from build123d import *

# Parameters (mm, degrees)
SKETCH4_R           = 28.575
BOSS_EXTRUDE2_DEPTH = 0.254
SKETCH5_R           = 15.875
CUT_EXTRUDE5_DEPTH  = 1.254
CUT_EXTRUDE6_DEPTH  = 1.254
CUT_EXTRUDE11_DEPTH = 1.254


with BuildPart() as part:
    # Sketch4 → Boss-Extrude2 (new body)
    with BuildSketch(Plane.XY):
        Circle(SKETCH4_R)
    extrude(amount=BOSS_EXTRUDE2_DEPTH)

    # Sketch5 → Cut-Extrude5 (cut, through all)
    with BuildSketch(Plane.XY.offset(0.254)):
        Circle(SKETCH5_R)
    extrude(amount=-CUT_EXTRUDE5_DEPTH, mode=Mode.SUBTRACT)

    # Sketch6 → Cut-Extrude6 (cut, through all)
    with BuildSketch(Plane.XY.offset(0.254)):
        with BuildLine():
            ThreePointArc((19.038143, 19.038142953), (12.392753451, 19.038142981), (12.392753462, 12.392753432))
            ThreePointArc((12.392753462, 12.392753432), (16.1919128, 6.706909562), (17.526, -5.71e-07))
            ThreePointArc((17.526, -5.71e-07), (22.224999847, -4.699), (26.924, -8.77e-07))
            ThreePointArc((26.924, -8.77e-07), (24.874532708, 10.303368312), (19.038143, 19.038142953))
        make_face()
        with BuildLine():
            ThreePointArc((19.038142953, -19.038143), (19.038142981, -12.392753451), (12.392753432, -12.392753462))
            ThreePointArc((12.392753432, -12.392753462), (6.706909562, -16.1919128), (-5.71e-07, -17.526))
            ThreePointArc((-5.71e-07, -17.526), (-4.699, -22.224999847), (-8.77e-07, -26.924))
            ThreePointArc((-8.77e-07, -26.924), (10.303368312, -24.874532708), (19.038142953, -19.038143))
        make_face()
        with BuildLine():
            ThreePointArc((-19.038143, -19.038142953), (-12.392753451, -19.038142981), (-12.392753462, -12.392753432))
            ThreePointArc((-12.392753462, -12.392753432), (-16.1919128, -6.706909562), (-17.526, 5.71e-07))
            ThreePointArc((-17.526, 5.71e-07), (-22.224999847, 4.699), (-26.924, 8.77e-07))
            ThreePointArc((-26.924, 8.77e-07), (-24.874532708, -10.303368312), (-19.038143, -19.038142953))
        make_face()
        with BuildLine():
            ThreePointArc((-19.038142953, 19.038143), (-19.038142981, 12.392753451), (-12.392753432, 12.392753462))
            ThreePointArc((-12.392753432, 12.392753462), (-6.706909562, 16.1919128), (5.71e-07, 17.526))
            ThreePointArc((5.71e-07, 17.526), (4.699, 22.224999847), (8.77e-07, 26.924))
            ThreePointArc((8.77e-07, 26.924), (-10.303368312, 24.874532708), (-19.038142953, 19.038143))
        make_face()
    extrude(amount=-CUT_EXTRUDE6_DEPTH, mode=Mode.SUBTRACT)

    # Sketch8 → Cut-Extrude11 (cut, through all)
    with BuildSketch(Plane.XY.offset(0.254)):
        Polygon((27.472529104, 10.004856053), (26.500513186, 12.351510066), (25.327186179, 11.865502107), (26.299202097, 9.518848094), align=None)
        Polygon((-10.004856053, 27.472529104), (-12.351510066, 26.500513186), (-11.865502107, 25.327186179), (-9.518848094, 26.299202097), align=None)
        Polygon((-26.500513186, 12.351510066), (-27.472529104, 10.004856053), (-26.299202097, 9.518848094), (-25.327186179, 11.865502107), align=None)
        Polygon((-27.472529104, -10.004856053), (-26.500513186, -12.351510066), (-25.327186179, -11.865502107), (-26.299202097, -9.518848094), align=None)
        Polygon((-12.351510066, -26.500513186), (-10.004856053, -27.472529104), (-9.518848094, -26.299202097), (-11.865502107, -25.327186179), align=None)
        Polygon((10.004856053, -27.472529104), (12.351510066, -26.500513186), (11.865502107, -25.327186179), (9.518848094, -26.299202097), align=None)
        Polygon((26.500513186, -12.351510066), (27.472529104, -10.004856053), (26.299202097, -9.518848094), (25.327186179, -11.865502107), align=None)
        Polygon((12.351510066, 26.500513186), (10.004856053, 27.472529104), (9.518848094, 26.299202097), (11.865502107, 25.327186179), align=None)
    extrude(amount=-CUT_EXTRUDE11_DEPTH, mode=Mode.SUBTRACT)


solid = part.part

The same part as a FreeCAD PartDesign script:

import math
import FreeCAD as App
import Part
import Sketcher

V = App.Vector
Q = App.Units.Quantity

doc = App.newDocument("Part")
body = doc.addObject("PartDesign::Body", "Body")

sketch1 = doc.addObject("Sketcher::SketchObject", "Sketch")
body.addObject(sketch1)
sketch1.AttachmentSupport = (doc.XY_Plane, [""])
sketch1.MapMode = "FlatFace"
sketch1.addGeometry(Part.Circle(V(0, 0, 0), V(0, 0, 1), 29), False)
sketch1.addConstraint(Sketcher.Constraint("Coincident", 0, 3, -1, 1))
sketch1.addConstraint(Sketcher.Constraint("Diameter", 0, Q("2.25 in")))
pad1 = doc.addObject("PartDesign::Pad", "Pad")
body.addObject(pad1)
pad1.Profile = sketch1
pad1.Length = Q("0.01 in")

sketch2 = doc.addObject("Sketcher::SketchObject", "Sketch001")
body.addObject(sketch2)
sketch2.AttachmentSupport = (doc.XY_Plane, [""])
sketch2.MapMode = "FlatFace"
sketch2.AttachmentOffset = App.Placement(V(0, 0, 0.01 * 25.4), App.Rotation())
sketch2.addGeometry(Part.Circle(V(0, 0, 0), V(0, 0, 1), 16), False)
sketch2.addConstraint(Sketcher.Constraint("Coincident", 0, 3, -1, 1))
sketch2.addConstraint(Sketcher.Constraint("Diameter", 0, Q("1.25 in")))
pocket1 = doc.addObject("PartDesign::Pocket", "Pocket")
body.addObject(pocket1)
pocket1.Profile = sketch2
pocket1.Type = "ThroughAll"

sketch3 = doc.addObject("Sketcher::SketchObject", "Sketch002")
body.addObject(sketch3)
sketch3.AttachmentSupport = (doc.XY_Plane, [""])
sketch3.MapMode = "FlatFace"
sketch3.AttachmentOffset = App.Placement(V(0, 0, 0.01 * 25.4), App.Rotation())
sketch3.addGeometry(Part.ArcOfCircle(Part.Circle(V(15.7, 15.7, 0), V(0, 0, 1), 4.7), math.radians(45), math.radians(225)), False)
sketch3.addGeometry(Part.ArcOfCircle(Part.Circle(V(0, 0, 0), V(0, 0, 1), 17.5), math.radians(0), math.radians(45)), False)
sketch3.addGeometry(Part.ArcOfCircle(Part.Circle(V(22.2, 0, 0), V(0, 0, 1), 4.7), math.radians(-180), math.radians(0)), False)
sketch3.addGeometry(Part.ArcOfCircle(Part.Circle(V(0, 0, 0), V(0, 0, 1), 26.9), math.radians(0), math.radians(45)), False)
sketch3.addGeometry(Part.ArcOfCircle(Part.Circle(V(15.7, -15.7, 0), V(0, 0, 1), 4.7), math.radians(-45), math.radians(135)), False)
sketch3.addGeometry(Part.ArcOfCircle(Part.Circle(V(0, 0, 0), V(0, 0, 1), 17.5), math.radians(-90), math.radians(-45)), False)
sketch3.addGeometry(Part.ArcOfCircle(Part.Circle(V(0, -22.2, 0), V(0, 0, 1), 4.7), math.radians(90), math.radians(270)), False)
sketch3.addGeometry(Part.ArcOfCircle(Part.Circle(V(0, 0, 0), V(0, 0, 1), 26.9), math.radians(-90), math.radians(-45)), False)
sketch3.addGeometry(Part.ArcOfCircle(Part.Circle(V(-15.7, -15.7, 0), V(0, 0, 1), 4.7), math.radians(-135), math.radians(45)), False)
sketch3.addGeometry(Part.ArcOfCircle(Part.Circle(V(0, 0, 0), V(0, 0, 1), 17.5), math.radians(180), math.radians(225)), False)
sketch3.addGeometry(Part.ArcOfCircle(Part.Circle(V(-22.2, 0, 0), V(0, 0, 1), 4.7), math.radians(0), math.radians(180)), False)
sketch3.addGeometry(Part.ArcOfCircle(Part.Circle(V(0, 0, 0), V(0, 0, 1), 26.9), math.radians(180), math.radians(225)), False)
sketch3.addGeometry(Part.ArcOfCircle(Part.Circle(V(-15.7, 15.7, 0), V(0, 0, 1), 4.7), math.radians(135), math.radians(315)), False)
sketch3.addGeometry(Part.ArcOfCircle(Part.Circle(V(0, 0, 0), V(0, 0, 1), 17.5), math.radians(90), math.radians(135)), False)
sketch3.addGeometry(Part.ArcOfCircle(Part.Circle(V(0, 22.2, 0), V(0, 0, 1), 4.7), math.radians(-90), math.radians(90)), False)
sketch3.addGeometry(Part.ArcOfCircle(Part.Circle(V(0, 0, 0), V(0, 0, 1), 26.9), math.radians(90), math.radians(135)), False)
sketch3.addConstraint(Sketcher.Constraint("Tangent", 0, 2, 1, 2))
sketch3.addConstraint(Sketcher.Constraint("Tangent", 1, 1, 2, 1))
sketch3.addConstraint(Sketcher.Constraint("Tangent", 2, 2, 3, 1))
sketch3.addConstraint(Sketcher.Constraint("Tangent", 3, 2, 0, 1))
sketch3.addConstraint(Sketcher.Constraint("Tangent", 4, 2, 5, 2))
sketch3.addConstraint(Sketcher.Constraint("Tangent", 5, 1, 6, 1))
sketch3.addConstraint(Sketcher.Constraint("Tangent", 6, 2, 7, 1))
sketch3.addConstraint(Sketcher.Constraint("Tangent", 7, 2, 4, 1))
sketch3.addConstraint(Sketcher.Constraint("Tangent", 8, 2, 9, 2))
sketch3.addConstraint(Sketcher.Constraint("Tangent", 9, 1, 10, 1))
sketch3.addConstraint(Sketcher.Constraint("Tangent", 10, 2, 11, 1))
sketch3.addConstraint(Sketcher.Constraint("Tangent", 11, 2, 8, 1))
sketch3.addConstraint(Sketcher.Constraint("Tangent", 12, 2, 13, 2))
sketch3.addConstraint(Sketcher.Constraint("Tangent", 13, 1, 14, 1))
sketch3.addConstraint(Sketcher.Constraint("Tangent", 14, 2, 15, 1))
sketch3.addConstraint(Sketcher.Constraint("Tangent", 15, 2, 12, 1))
sketch3.addConstraint(Sketcher.Constraint("Coincident", 1, 3, -1, 1))
sketch3.addConstraint(Sketcher.Constraint("Coincident", 3, 3, -1, 1))
sketch3.addConstraint(Sketcher.Constraint("Coincident", 5, 3, -1, 1))
sketch3.addConstraint(Sketcher.Constraint("Coincident", 7, 3, -1, 1))
sketch3.addConstraint(Sketcher.Constraint("Coincident", 9, 3, -1, 1))
sketch3.addConstraint(Sketcher.Constraint("Coincident", 11, 3, -1, 1))
sketch3.addConstraint(Sketcher.Constraint("Coincident", 13, 3, -1, 1))
sketch3.addConstraint(Sketcher.Constraint("Coincident", 15, 3, -1, 1))
sketch3.addConstraint(Sketcher.Constraint("Equal", 2, 4))
sketch3.addConstraint(Sketcher.Constraint("Equal", 1, 5))
sketch3.addConstraint(Sketcher.Constraint("Equal", 6, 8))
sketch3.addConstraint(Sketcher.Constraint("Equal", 5, 9))
sketch3.addConstraint(Sketcher.Constraint("Equal", 10, 12))
sketch3.addConstraint(Sketcher.Constraint("Equal", 9, 13))
sketch3.addConstraint(Sketcher.Constraint("PointOnObject", 2, 3, -1))
sketch3.addConstraint(Sketcher.Constraint("PointOnObject", 6, 3, -2))
sketch3.addConstraint(Sketcher.Constraint("PointOnObject", 10, 3, -1))
sketch3.addConstraint(Sketcher.Constraint("PointOnObject", 14, 3, -2))
sketch3.addConstraint(Sketcher.Constraint("Horizontal", 4, 3, 8, 3))
sketch3.addConstraint(Sketcher.Constraint("Horizontal", 0, 3, 12, 3))
sketch3.addConstraint(Sketcher.Constraint("Vertical", 0, 3, 4, 3))
sketch3.addConstraint(Sketcher.Constraint("Radius", 1, Q("0.69 in")))
sketch3.addConstraint(Sketcher.Constraint("Radius", 3, Q("1.06 in")))
sketch3.addConstraint(Sketcher.Constraint("DistanceX", -1, 1, 0, 3, Q("15.715448 mm")))
pocket2 = doc.addObject("PartDesign::Pocket", "Pocket001")
body.addObject(pocket2)
pocket2.Profile = sketch3
pocket2.Type = "ThroughAll"

sketch4 = doc.addObject("Sketcher::SketchObject", "Sketch003")
body.addObject(sketch4)
sketch4.AttachmentSupport = (doc.XY_Plane, [""])
sketch4.MapMode = "FlatFace"
sketch4.AttachmentOffset = App.Placement(V(0, 0, 0.01 * 25.4), App.Rotation())
sketch4.addGeometry(Part.LineSegment(V(27.5, 10, 0), V(26.5, 12.4, 0)), False)
sketch4.addGeometry(Part.LineSegment(V(26.5, 12.4, 0), V(25.3, 11.9, 0)), False)
sketch4.addGeometry(Part.LineSegment(V(25.3, 11.9, 0), V(26.3, 9.5, 0)), False)
sketch4.addGeometry(Part.LineSegment(V(26.3, 9.5, 0), V(27.5, 10, 0)), False)
sketch4.addGeometry(Part.LineSegment(V(-10, 27.5, 0), V(-12.4, 26.5, 0)), False)
sketch4.addGeometry(Part.LineSegment(V(-12.4, 26.5, 0), V(-11.9, 25.3, 0)), False)
sketch4.addGeometry(Part.LineSegment(V(-11.9, 25.3, 0), V(-9.5, 26.3, 0)), False)
sketch4.addGeometry(Part.LineSegment(V(-9.5, 26.3, 0), V(-10, 27.5, 0)), False)
sketch4.addGeometry(Part.LineSegment(V(-26.5, 12.4, 0), V(-27.5, 10, 0)), False)
sketch4.addGeometry(Part.LineSegment(V(-27.5, 10, 0), V(-26.3, 9.5, 0)), False)
sketch4.addGeometry(Part.LineSegment(V(-26.3, 9.5, 0), V(-25.3, 11.9, 0)), False)
sketch4.addGeometry(Part.LineSegment(V(-25.3, 11.9, 0), V(-26.5, 12.4, 0)), False)
sketch4.addGeometry(Part.LineSegment(V(-27.5, -10, 0), V(-26.5, -12.4, 0)), False)
sketch4.addGeometry(Part.LineSegment(V(-26.5, -12.4, 0), V(-25.3, -11.9, 0)), False)
sketch4.addGeometry(Part.LineSegment(V(-25.3, -11.9, 0), V(-26.3, -9.5, 0)), False)
sketch4.addGeometry(Part.LineSegment(V(-26.3, -9.5, 0), V(-27.5, -10, 0)), False)
sketch4.addGeometry(Part.LineSegment(V(-12.4, -26.5, 0), V(-10, -27.5, 0)), False)
sketch4.addGeometry(Part.LineSegment(V(-10, -27.5, 0), V(-9.5, -26.3, 0)), False)
sketch4.addGeometry(Part.LineSegment(V(-9.5, -26.3, 0), V(-11.9, -25.3, 0)), False)
sketch4.addGeometry(Part.LineSegment(V(-11.9, -25.3, 0), V(-12.4, -26.5, 0)), False)
sketch4.addGeometry(Part.LineSegment(V(10, -27.5, 0), V(12.4, -26.5, 0)), False)
sketch4.addGeometry(Part.LineSegment(V(12.4, -26.5, 0), V(11.9, -25.3, 0)), False)
sketch4.addGeometry(Part.LineSegment(V(11.9, -25.3, 0), V(9.5, -26.3, 0)), False)
sketch4.addGeometry(Part.LineSegment(V(9.5, -26.3, 0), V(10, -27.5, 0)), False)
sketch4.addGeometry(Part.LineSegment(V(26.5, -12.4, 0), V(27.5, -10, 0)), False)
sketch4.addGeometry(Part.LineSegment(V(27.5, -10, 0), V(26.3, -9.5, 0)), False)
sketch4.addGeometry(Part.LineSegment(V(26.3, -9.5, 0), V(25.3, -11.9, 0)), False)
sketch4.addGeometry(Part.LineSegment(V(25.3, -11.9, 0), V(26.5, -12.4, 0)), False)
sketch4.addGeometry(Part.LineSegment(V(12.4, 26.5, 0), V(10, 27.5, 0)), False)
sketch4.addGeometry(Part.LineSegment(V(10, 27.5, 0), V(9.5, 26.3, 0)), False)
sketch4.addGeometry(Part.LineSegment(V(9.5, 26.3, 0), V(11.9, 25.3, 0)), False)
sketch4.addGeometry(Part.LineSegment(V(11.9, 25.3, 0), V(12.4, 26.5, 0)), False)
sketch4.addConstraint(Sketcher.Constraint("Coincident", 0, 2, 1, 1))
sketch4.addConstraint(Sketcher.Constraint("Coincident", 1, 2, 2, 1))
sketch4.addConstraint(Sketcher.Constraint("Coincident", 2, 2, 3, 1))
sketch4.addConstraint(Sketcher.Constraint("Coincident", 3, 2, 0, 1))
sketch4.addConstraint(Sketcher.Constraint("Coincident", 4, 2, 5, 1))
sketch4.addConstraint(Sketcher.Constraint("Coincident", 5, 2, 6, 1))
sketch4.addConstraint(Sketcher.Constraint("Coincident", 6, 2, 7, 1))
sketch4.addConstraint(Sketcher.Constraint("Coincident", 7, 2, 4, 1))
sketch4.addConstraint(Sketcher.Constraint("Coincident", 8, 2, 9, 1))
sketch4.addConstraint(Sketcher.Constraint("Coincident", 9, 2, 10, 1))
sketch4.addConstraint(Sketcher.Constraint("Coincident", 10, 2, 11, 1))
sketch4.addConstraint(Sketcher.Constraint("Coincident", 11, 2, 8, 1))
sketch4.addConstraint(Sketcher.Constraint("Coincident", 12, 2, 13, 1))
sketch4.addConstraint(Sketcher.Constraint("Coincident", 13, 2, 14, 1))
sketch4.addConstraint(Sketcher.Constraint("Coincident", 14, 2, 15, 1))
sketch4.addConstraint(Sketcher.Constraint("Coincident", 15, 2, 12, 1))
sketch4.addConstraint(Sketcher.Constraint("Coincident", 16, 2, 17, 1))
sketch4.addConstraint(Sketcher.Constraint("Coincident", 17, 2, 18, 1))
sketch4.addConstraint(Sketcher.Constraint("Coincident", 18, 2, 19, 1))
sketch4.addConstraint(Sketcher.Constraint("Coincident", 19, 2, 16, 1))
sketch4.addConstraint(Sketcher.Constraint("Coincident", 20, 2, 21, 1))
sketch4.addConstraint(Sketcher.Constraint("Coincident", 21, 2, 22, 1))
sketch4.addConstraint(Sketcher.Constraint("Coincident", 22, 2, 23, 1))
sketch4.addConstraint(Sketcher.Constraint("Coincident", 23, 2, 20, 1))
sketch4.addConstraint(Sketcher.Constraint("Coincident", 24, 2, 25, 1))
sketch4.addConstraint(Sketcher.Constraint("Coincident", 25, 2, 26, 1))
sketch4.addConstraint(Sketcher.Constraint("Coincident", 26, 2, 27, 1))
sketch4.addConstraint(Sketcher.Constraint("Coincident", 27, 2, 24, 1))
sketch4.addConstraint(Sketcher.Constraint("Coincident", 28, 2, 29, 1))
sketch4.addConstraint(Sketcher.Constraint("Coincident", 29, 2, 30, 1))
sketch4.addConstraint(Sketcher.Constraint("Coincident", 30, 2, 31, 1))
sketch4.addConstraint(Sketcher.Constraint("Coincident", 31, 2, 28, 1))
sketch4.addConstraint(Sketcher.Constraint("Symmetric", 0, 2, 12, 2, -1, 1))
sketch4.addConstraint(Sketcher.Constraint("Symmetric", 1, 2, 13, 2, -1, 1))
sketch4.addConstraint(Sketcher.Constraint("Symmetric", 2, 2, 14, 2, -1, 1))
sketch4.addConstraint(Sketcher.Constraint("Symmetric", 3, 2, 15, 2, -1, 1))
sketch4.addConstraint(Sketcher.Constraint("Symmetric", 4, 2, 20, 2, -1, 1))
sketch4.addConstraint(Sketcher.Constraint("Symmetric", 5, 2, 21, 2, -1, 1))
sketch4.addConstraint(Sketcher.Constraint("Symmetric", 6, 2, 22, 2, -1, 1))
sketch4.addConstraint(Sketcher.Constraint("Symmetric", 7, 2, 23, 2, -1, 1))
sketch4.addConstraint(Sketcher.Constraint("Symmetric", 8, 2, 24, 2, -1, 1))
sketch4.addConstraint(Sketcher.Constraint("Symmetric", 9, 2, 25, 2, -1, 1))
sketch4.addConstraint(Sketcher.Constraint("Symmetric", 10, 2, 26, 2, -1, 1))
sketch4.addConstraint(Sketcher.Constraint("Symmetric", 11, 2, 27, 2, -1, 1))
sketch4.addConstraint(Sketcher.Constraint("Symmetric", 16, 2, 28, 2, -1, 1))
sketch4.addConstraint(Sketcher.Constraint("Symmetric", 17, 2, 29, 2, -1, 1))
sketch4.addConstraint(Sketcher.Constraint("Symmetric", 18, 2, 30, 2, -1, 1))
sketch4.addConstraint(Sketcher.Constraint("Symmetric", 19, 2, 31, 2, -1, 1))
sketch4.addConstraint(Sketcher.Constraint("Symmetric", 3, 2, 8, 2, -2))
sketch4.addConstraint(Sketcher.Constraint("Symmetric", 2, 2, 9, 2, -2))
sketch4.addConstraint(Sketcher.Constraint("Symmetric", 1, 2, 10, 2, -2))
sketch4.addConstraint(Sketcher.Constraint("Symmetric", 0, 2, 11, 2, -2))
sketch4.addConstraint(Sketcher.Constraint("Symmetric", 19, 2, 20, 2, -2))
sketch4.addConstraint(Sketcher.Constraint("Symmetric", 18, 2, 21, 2, -2))
sketch4.addConstraint(Sketcher.Constraint("Symmetric", 17, 2, 22, 2, -2))
sketch4.addConstraint(Sketcher.Constraint("Symmetric", 16, 2, 23, 2, -2))
sketch4.addConstraint(Sketcher.Constraint("Perpendicular", 0, 1))
sketch4.addConstraint(Sketcher.Constraint("Perpendicular", 1, 2))
sketch4.addConstraint(Sketcher.Constraint("Perpendicular", 2, 3))
sketch4.addConstraint(Sketcher.Constraint("Parallel", 3, 4))
sketch4.addConstraint(Sketcher.Constraint("Perpendicular", 4, 5))
sketch4.addConstraint(Sketcher.Constraint("Perpendicular", 5, 6))
sketch4.addConstraint(Sketcher.Constraint("Perpendicular", 6, 7))
sketch4.addConstraint(Sketcher.Constraint("Equal", 2, 4))
sketch4.addConstraint(Sketcher.Constraint("Equal", 3, 5))
sketch4.addConstraint(Sketcher.Constraint("Distance", 0, Q("0.1 in")))
sketch4.addConstraint(Sketcher.Constraint("Angle", 0, Q("112.5 deg")))
sketch4.addConstraint(Sketcher.Constraint("Distance", 1, Q("0.05 in")))
sketch4.addConstraint(Sketcher.Constraint("DistanceY", 1, 2, 6, 2, Q("14.4337 mm")))
sketch4.addConstraint(Sketcher.Constraint("DistanceX", 9, 2, 5, 2, Q("14.4337 mm")))
sketch4.addConstraint(Sketcher.Constraint("DistanceY", -1, 1, 0, 2, Q("12.35151 mm")))
sketch4.addConstraint(Sketcher.Constraint("DistanceX", -1, 1, 3, 2, Q("27.472529 mm")))
pocket3 = doc.addObject("PartDesign::Pocket", "Pocket002")
body.addObject(pocket3)
pocket3.Profile = sketch4
pocket3.Type = "ThroughAll"

doc.recompute()
